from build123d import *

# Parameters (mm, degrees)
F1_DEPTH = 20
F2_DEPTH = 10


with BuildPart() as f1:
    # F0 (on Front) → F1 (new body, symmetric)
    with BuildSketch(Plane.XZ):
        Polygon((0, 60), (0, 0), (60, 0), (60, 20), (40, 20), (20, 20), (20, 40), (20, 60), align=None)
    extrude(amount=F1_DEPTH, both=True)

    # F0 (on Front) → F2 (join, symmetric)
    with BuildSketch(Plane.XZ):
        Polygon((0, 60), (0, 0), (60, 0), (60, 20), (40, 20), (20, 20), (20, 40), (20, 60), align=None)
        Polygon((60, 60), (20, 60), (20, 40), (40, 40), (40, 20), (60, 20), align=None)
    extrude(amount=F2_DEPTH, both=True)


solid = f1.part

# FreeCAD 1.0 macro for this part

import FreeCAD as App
import Part
import Sketcher
from FreeCAD import Vector


def add_polygon(sketch, points):
    """Adds a closed chain of lines whose ends are joined by coincident constraints."""
    first, n = sketch.GeometryCount, len(points)
    for a, b in zip(points, points[1:] + points[:1]):
        sketch.addGeometry(Part.LineSegment(App.Vector(*a, 0), App.Vector(*b, 0)), False)
    for i in range(n):
        sketch.addConstraint(Sketcher.Constraint("Coincident", first + i, 2, first + (i + 1) % n, 1))

doc = App.newDocument("Part")
body = doc.addObject("PartDesign::Body", "Body")

# Sketch on XZ plane
sketch1 = doc.addObject("Sketcher::SketchObject", "Sketch")
body.addObject(sketch1)
sketch1.AttachmentSupport = (doc.XZ_Plane, [""])
sketch1.MapMode = "FlatFace"
add_polygon(sketch1, [(0, 60), (0, 0), (60, 0), (60, 20), (20, 20), (20, 60)])  # lines 0-5
sketch1.addConstraint(Sketcher.Constraint("Vertical", 0))
sketch1.addConstraint(Sketcher.Constraint("Horizontal", 1))
sketch1.addConstraint(Sketcher.Constraint("Vertical", 2))
sketch1.addConstraint(Sketcher.Constraint("Horizontal", 3))
sketch1.addConstraint(Sketcher.Constraint("Vertical", 4))
sketch1.addConstraint(Sketcher.Constraint("Horizontal", 5))
sketch1.addConstraint(Sketcher.Constraint("Coincident", 0, 2, -1, 1))
sketch1.addConstraint(Sketcher.Constraint("Equal", 1, 0))
sketch1.addConstraint(Sketcher.Constraint("Equal", 5, 2))
sketch1.addConstraint(Sketcher.Constraint("DistanceX", 1, 1, 1, 2, 60.0))
sketch1.addConstraint(Sketcher.Constraint("DistanceX", 3, 2, 3, 1, 40.0))
pad1 = doc.addObject("PartDesign::Pad", "Pad")
body.addObject(pad1)
pad1.Profile = sketch1
pad1.Length = 40
pad1.Midplane = True

# Sketch on XZ plane
sketch2 = doc.addObject("Sketcher::SketchObject", "Sketch001")
body.addObject(sketch2)
sketch2.AttachmentSupport = (doc.XZ_Plane, [""])
sketch2.MapMode = "FlatFace"
add_polygon(sketch2, [(0, 60), (0, 0), (60, 0), (60, 60)])  # lines 0-3
add_polygon(sketch2, [(40, 20), (20, 20), (20, 40), (40, 40)])  # lines 4-7
sketch2.addConstraint(Sketcher.Constraint("Vertical", 0))
sketch2.addConstraint(Sketcher.Constraint("Horizontal", 1))
sketch2.addConstraint(Sketcher.Constraint("Vertical", 2))
sketch2.addConstraint(Sketcher.Constraint("Horizontal", 3))
sketch2.addConstraint(Sketcher.Constraint("Horizontal", 4))
sketch2.addConstraint(Sketcher.Constraint("Vertical", 5))
sketch2.addConstraint(Sketcher.Constraint("Horizontal", 6))
sketch2.addConstraint(Sketcher.Constraint("Vertical", 7))
sketch2.addConstraint(Sketcher.Constraint("Coincident", 0, 2, -1, 1))
sketch2.addConstraint(Sketcher.Constraint("Equal", 3, 0))
sketch2.addConstraint(Sketcher.Constraint("Equal", 6, 5))
sketch2.addConstraint(Sketcher.Constraint("DistanceX", 1, 1, 1, 2, 60.0))
sketch2.addConstraint(Sketcher.Constraint("DistanceX", 4, 2, 4, 1, 20.0))
sketch2.addConstraint(Sketcher.Constraint("DistanceX", -1, 1, 4, 2, 20.0))
sketch2.addConstraint(Sketcher.Constraint("DistanceY", -1, 1, 4, 2, 20.0))
pad2 = doc.addObject("PartDesign::Pad", "Pad001")
body.addObject(pad2)
pad2.Profile = sketch2
pad2.Length = 20
pad2.Midplane = True

doc.recompute()
